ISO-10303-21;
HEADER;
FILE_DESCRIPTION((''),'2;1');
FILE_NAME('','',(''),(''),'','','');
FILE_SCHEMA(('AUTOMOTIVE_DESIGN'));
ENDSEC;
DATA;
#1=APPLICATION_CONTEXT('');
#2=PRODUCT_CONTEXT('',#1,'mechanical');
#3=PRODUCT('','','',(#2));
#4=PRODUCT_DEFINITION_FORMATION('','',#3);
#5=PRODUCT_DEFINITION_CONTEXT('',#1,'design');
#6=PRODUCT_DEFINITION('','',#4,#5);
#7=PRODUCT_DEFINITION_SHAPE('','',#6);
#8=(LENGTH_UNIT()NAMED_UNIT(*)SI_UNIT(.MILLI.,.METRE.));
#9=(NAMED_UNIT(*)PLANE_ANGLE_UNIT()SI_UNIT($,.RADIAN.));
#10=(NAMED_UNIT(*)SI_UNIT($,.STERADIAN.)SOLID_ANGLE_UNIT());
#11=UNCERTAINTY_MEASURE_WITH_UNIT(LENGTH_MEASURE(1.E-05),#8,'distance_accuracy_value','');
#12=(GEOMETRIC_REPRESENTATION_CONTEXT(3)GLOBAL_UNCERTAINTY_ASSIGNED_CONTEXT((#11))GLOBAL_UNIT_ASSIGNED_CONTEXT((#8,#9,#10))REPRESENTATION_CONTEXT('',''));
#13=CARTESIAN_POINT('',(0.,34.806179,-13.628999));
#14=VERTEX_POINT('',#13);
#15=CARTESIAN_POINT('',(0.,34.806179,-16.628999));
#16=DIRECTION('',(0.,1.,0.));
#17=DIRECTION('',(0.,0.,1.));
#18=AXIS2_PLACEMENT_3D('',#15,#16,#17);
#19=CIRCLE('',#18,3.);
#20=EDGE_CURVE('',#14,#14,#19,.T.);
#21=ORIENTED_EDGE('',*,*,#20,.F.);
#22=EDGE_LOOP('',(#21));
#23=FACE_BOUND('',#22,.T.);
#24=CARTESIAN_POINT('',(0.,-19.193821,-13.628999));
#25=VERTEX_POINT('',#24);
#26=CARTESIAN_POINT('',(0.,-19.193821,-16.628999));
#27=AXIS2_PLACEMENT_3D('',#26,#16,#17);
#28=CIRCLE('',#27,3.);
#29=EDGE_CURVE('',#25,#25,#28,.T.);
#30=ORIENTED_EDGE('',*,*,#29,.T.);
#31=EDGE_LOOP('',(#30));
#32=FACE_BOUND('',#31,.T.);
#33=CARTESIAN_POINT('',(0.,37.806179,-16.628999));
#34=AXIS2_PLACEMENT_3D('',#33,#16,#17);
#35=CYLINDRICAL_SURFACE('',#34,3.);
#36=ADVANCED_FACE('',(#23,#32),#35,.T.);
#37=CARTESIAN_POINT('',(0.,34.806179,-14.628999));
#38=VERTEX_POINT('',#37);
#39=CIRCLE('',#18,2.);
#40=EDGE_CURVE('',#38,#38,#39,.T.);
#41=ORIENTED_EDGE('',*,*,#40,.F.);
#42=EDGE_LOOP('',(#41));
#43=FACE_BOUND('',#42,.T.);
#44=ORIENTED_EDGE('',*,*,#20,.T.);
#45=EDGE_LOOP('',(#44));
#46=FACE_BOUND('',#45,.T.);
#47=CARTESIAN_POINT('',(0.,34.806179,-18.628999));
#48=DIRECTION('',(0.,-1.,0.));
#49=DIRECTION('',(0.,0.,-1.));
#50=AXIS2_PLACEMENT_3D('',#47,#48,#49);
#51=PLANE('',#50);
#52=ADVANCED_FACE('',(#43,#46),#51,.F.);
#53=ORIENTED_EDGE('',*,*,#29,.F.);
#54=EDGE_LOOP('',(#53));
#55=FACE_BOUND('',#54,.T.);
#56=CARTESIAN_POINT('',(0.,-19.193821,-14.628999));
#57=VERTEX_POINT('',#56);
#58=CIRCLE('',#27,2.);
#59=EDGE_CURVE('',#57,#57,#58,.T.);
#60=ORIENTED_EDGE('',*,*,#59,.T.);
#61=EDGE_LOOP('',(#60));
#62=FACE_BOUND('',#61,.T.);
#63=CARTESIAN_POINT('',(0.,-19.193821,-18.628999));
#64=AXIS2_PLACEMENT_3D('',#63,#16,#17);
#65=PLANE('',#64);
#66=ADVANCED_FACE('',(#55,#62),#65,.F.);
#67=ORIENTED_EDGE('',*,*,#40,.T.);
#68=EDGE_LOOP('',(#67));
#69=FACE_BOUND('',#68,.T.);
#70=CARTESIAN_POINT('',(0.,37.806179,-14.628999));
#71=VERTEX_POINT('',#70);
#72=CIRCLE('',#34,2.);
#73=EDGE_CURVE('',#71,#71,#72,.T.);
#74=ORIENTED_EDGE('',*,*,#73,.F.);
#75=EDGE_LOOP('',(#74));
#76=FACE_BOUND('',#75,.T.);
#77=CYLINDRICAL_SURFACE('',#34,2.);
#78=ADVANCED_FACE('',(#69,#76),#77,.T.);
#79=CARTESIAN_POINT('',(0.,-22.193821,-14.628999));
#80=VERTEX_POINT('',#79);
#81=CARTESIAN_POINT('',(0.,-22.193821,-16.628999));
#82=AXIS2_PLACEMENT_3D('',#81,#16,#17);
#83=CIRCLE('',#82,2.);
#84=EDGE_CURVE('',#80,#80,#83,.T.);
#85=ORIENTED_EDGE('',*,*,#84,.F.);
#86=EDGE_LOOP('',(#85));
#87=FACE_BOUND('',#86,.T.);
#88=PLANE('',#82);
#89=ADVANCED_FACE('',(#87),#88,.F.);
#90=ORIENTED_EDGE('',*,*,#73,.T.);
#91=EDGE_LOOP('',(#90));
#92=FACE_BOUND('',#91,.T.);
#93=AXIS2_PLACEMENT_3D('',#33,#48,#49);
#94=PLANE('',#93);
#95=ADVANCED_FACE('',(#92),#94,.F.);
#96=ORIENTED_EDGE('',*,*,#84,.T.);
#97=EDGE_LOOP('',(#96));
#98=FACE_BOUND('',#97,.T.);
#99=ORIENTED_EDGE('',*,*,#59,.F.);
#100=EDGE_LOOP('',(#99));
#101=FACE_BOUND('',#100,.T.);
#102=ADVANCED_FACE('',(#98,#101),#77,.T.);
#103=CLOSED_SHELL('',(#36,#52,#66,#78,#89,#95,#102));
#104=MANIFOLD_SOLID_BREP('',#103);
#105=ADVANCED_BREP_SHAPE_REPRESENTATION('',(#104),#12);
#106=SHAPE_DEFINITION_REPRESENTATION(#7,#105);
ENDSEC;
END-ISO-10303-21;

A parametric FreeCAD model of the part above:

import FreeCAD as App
import Part
import Sketcher

doc = App.newDocument("Part")
body = doc.addObject("PartDesign::Body", "Body")

sketch1 = doc.addObject("Sketcher::SketchObject", "Sketch")
body.addObject(sketch1)
sketch1.AttachmentSupport = (doc.YZ_Plane, [""])
sketch1.MapMode = "FlatFace"
sketch1.addGeometry(Part.LineSegment(App.Vector(37.806179, -16.628999, 0), App.Vector(-22.193821, -16.628999, 0)), False)
sketch1.addGeometry(Part.LineSegment(App.Vector(-22.193821, -16.628999, 0), App.Vector(-22.193821, -18.628999, 0)), False)
sketch1.addGeometry(Part.LineSegment(App.Vector(-22.193821, -18.628999, 0), App.Vector(-19.193821, -18.628999, 0)), False)
sketch1.addGeometry(Part.LineSegment(App.Vector(-19.193821, -18.628999, 0), App.Vector(-19.193821, -19.628999, 0)), False)
sketch1.addGeometry(Part.LineSegment(App.Vector(-19.193821, -19.628999, 0), App.Vector(34.806179, -19.628999, 0)), False)
sketch1.addGeometry(Part.LineSegment(App.Vector(34.806179, -19.628999, 0), App.Vector(34.806179, -18.628999, 0)), False)
sketch1.addGeometry(Part.LineSegment(App.Vector(34.806179, -18.628999, 0), App.Vector(37.806179, -18.628999, 0)), False)
sketch1.addGeometry(Part.LineSegment(App.Vector(37.806179, -18.628999, 0), App.Vector(37.806179, -16.628999, 0)), False)
sketch1.addGeometry(Part.LineSegment(App.Vector(37.806179, -16.628999, 0), App.Vector(-22.193821, -16.628999, 0)), True)
sketch1.addConstraint(Sketcher.Constraint("Coincident", 0, 2, 1, 1))
sketch1.addConstraint(Sketcher.Constraint("Coincident", 1, 2, 2, 1))
sketch1.addConstraint(Sketcher.Constraint("Coincident", 2, 2, 3, 1))
sketch1.addConstraint(Sketcher.Constraint("Coincident", 3, 2, 4, 1))
sketch1.addConstraint(Sketcher.Constraint("Coincident", 4, 2, 5, 1))
sketch1.addConstraint(Sketcher.Constraint("Coincident", 5, 2, 6, 1))
sketch1.addConstraint(Sketcher.Constraint("Coincident", 6, 2, 7, 1))
sketch1.addConstraint(Sketcher.Constraint("Coincident", 7, 2, 0, 1))
sketch1.addConstraint(Sketcher.Constraint("Horizontal", 0))
sketch1.addConstraint(Sketcher.Constraint("Vertical", 1))
sketch1.addConstraint(Sketcher.Constraint("Horizontal", 2))
sketch1.addConstraint(Sketcher.Constraint("Vertical", 3))
sketch1.addConstraint(Sketcher.Constraint("Horizontal", 4))
sketch1.addConstraint(Sketcher.Constraint("Vertical", 5))
sketch1.addConstraint(Sketcher.Constraint("Horizontal", 6))
sketch1.addConstraint(Sketcher.Constraint("Vertical", 7))
sketch1.addConstraint(Sketcher.Constraint("Horizontal", 8))
sketch1.addConstraint(Sketcher.Constraint("Coincident", 8, 1, 7, 2))
sketch1.addConstraint(Sketcher.Constraint("Horizontal", 2, 2, 5, 2))
sketch1.addConstraint(Sketcher.Constraint("Vertical", 1, 2, 8, 2))
sketch1.addConstraint(Sketcher.Constraint("Equal", 2, 6))
sketch1.addConstraint(Sketcher.Constraint("DistanceX", 0, 2, 0, 1, 60.0))
sketch1.addConstraint(Sketcher.Constraint("DistanceX", 2, 1, 2, 2, 3.0))
sketch1.addConstraint(Sketcher.Constraint("DistanceY", 1, 2, 1, 1, 2.0))
sketch1.addConstraint(Sketcher.Constraint("DistanceY", 3, 2, 3, 1, 1.0))
sketch1.addConstraint(Sketcher.Constraint("DistanceY", 0, 2, -1, 1, 16.628999))
sketch1.addConstraint(Sketcher.Constraint("DistanceX", 0, 2, -1, 1, 22.193821))
revolution = doc.addObject("PartDesign::Revolution", "Revolution")
body.addObject(revolution)
revolution.Profile = sketch1
revolution.ReferenceAxis = (sketch1, ["Axis0"])
revolution.Angle = 360

doc.recompute()
